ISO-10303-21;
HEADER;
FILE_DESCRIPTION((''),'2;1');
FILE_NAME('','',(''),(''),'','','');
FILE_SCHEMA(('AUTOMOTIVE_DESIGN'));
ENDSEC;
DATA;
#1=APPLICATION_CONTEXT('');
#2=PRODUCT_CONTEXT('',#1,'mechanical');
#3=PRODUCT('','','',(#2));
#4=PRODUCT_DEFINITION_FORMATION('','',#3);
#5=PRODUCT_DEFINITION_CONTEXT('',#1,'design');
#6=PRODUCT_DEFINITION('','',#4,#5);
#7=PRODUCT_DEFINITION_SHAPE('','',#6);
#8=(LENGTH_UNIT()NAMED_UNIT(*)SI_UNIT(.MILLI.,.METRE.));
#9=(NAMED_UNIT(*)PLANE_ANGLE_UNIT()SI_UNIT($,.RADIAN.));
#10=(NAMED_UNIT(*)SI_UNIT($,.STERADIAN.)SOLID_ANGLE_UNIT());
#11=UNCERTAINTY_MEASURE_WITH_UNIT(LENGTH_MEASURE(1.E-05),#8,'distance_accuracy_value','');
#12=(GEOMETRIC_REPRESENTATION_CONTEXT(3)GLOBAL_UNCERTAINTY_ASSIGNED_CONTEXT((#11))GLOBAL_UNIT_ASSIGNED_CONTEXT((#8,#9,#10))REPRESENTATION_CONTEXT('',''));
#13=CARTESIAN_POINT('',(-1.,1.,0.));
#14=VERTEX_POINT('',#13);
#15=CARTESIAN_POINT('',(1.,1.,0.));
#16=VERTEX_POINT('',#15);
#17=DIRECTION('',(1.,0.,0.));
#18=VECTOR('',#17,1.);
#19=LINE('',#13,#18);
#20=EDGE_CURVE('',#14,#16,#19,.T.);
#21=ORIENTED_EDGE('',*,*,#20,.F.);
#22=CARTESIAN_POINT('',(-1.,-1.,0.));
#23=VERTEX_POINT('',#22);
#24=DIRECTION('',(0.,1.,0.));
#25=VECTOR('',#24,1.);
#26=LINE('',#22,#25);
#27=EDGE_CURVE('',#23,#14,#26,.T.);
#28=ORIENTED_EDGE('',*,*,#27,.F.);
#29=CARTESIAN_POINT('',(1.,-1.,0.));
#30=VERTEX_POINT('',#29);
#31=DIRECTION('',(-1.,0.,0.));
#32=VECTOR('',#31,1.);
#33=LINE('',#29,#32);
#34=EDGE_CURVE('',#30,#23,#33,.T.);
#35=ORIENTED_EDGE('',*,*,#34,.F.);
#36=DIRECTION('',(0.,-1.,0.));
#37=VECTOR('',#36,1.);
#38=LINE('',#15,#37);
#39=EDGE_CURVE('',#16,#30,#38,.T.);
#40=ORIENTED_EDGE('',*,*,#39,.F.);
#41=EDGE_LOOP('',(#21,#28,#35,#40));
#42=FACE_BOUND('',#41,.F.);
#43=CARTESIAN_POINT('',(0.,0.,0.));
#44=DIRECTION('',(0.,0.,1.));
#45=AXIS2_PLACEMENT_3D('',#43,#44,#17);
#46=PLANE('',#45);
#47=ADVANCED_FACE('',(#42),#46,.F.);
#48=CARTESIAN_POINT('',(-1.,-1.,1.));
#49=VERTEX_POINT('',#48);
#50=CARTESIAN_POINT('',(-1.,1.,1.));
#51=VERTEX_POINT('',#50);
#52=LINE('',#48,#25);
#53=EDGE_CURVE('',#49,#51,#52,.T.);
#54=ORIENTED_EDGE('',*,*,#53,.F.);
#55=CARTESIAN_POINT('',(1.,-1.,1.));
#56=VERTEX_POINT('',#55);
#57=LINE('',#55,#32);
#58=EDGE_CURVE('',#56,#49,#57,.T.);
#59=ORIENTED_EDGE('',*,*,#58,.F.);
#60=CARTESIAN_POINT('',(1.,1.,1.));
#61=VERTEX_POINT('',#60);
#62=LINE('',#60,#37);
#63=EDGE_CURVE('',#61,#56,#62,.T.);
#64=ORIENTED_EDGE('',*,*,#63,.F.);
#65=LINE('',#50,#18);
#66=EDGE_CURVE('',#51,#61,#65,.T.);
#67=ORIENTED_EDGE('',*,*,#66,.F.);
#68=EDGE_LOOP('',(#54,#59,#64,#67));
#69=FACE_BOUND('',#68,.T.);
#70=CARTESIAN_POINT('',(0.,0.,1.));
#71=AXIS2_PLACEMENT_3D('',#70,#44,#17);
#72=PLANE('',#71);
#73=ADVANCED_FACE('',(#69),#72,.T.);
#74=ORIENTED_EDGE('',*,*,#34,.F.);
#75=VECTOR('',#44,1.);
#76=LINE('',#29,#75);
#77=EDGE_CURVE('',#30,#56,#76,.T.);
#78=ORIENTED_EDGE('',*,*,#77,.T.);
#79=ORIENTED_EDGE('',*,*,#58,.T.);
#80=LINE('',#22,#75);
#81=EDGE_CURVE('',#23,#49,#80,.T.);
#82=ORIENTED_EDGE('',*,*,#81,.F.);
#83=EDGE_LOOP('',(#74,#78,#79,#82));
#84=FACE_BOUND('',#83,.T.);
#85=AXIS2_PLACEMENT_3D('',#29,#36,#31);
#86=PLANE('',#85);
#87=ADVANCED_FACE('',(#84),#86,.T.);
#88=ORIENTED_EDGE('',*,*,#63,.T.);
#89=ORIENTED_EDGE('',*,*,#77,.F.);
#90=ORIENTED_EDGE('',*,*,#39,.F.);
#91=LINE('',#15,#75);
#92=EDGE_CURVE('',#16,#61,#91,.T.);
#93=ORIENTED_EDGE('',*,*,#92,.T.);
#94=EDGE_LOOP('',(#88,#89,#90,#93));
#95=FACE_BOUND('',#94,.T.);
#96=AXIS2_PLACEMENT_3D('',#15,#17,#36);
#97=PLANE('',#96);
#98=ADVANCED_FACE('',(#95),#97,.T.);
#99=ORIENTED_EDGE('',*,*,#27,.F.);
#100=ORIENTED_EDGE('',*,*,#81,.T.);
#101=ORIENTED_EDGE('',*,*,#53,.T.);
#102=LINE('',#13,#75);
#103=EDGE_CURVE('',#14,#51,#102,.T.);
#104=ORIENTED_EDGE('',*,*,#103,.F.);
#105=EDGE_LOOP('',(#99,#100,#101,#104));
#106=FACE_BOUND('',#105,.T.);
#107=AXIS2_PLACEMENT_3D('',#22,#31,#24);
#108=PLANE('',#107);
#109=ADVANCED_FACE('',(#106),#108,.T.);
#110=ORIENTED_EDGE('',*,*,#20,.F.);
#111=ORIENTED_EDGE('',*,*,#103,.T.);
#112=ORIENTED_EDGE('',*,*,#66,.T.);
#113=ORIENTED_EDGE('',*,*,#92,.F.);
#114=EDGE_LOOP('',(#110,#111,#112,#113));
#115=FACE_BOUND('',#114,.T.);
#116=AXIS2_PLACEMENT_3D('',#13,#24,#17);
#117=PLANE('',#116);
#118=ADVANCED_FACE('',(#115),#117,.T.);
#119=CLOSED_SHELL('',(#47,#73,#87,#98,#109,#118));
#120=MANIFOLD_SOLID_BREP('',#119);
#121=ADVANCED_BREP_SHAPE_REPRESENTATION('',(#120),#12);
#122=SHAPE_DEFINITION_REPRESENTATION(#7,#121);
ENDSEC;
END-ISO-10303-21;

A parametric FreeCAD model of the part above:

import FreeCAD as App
import Part
import Sketcher

V = App.Vector
Q = App.Units.Quantity


def add_polygon(sketch, points):
    """Adds a closed chain of lines whose ends are joined by coincident constraints."""
    first, n = sketch.GeometryCount, len(points)
    for a, b in zip(points, points[1:] + points[:1]):
        sketch.addGeometry(Part.LineSegment(App.Vector(*a, 0), App.Vector(*b, 0)), False)
    for i in range(n):
        sketch.addConstraint(Sketcher.Constraint("Coincident", first + i, 2, first + (i + 1) % n, 1))

doc = App.newDocument("Part")
body = doc.addObject("PartDesign::Body", "Body")

# Sketch on XY plane
sketch1 = body.newObject("Sketcher::SketchObject", "Sketch")
sketch1.AttachmentSupport = (doc.getObject("XY_Plane"), [""])
sketch1.MapMode = "FlatFace"
add_polygon(sketch1, [(-1, 1), (-1, -1), (1, -1), (1, 1)])  # lines 0-3
sketch1.addConstraint([
    Sketcher.Constraint("Vertical", 0),
    Sketcher.Constraint("Horizontal", 1),
    Sketcher.Constraint("Vertical", 2),
    Sketcher.Constraint("Horizontal", 3),
    Sketcher.Constraint("Symmetric", 0, 2, 2, 2, -1, 1),
    Sketcher.Constraint("Equal", 3, 0),
    Sketcher.Constraint("DistanceX", 1, 1, 1, 2, Q("2 mm")),
])
pad1 = body.newObject("PartDesign::Pad", "Pad")
pad1.Profile = sketch1
pad1.Length = 1

doc.recompute()
